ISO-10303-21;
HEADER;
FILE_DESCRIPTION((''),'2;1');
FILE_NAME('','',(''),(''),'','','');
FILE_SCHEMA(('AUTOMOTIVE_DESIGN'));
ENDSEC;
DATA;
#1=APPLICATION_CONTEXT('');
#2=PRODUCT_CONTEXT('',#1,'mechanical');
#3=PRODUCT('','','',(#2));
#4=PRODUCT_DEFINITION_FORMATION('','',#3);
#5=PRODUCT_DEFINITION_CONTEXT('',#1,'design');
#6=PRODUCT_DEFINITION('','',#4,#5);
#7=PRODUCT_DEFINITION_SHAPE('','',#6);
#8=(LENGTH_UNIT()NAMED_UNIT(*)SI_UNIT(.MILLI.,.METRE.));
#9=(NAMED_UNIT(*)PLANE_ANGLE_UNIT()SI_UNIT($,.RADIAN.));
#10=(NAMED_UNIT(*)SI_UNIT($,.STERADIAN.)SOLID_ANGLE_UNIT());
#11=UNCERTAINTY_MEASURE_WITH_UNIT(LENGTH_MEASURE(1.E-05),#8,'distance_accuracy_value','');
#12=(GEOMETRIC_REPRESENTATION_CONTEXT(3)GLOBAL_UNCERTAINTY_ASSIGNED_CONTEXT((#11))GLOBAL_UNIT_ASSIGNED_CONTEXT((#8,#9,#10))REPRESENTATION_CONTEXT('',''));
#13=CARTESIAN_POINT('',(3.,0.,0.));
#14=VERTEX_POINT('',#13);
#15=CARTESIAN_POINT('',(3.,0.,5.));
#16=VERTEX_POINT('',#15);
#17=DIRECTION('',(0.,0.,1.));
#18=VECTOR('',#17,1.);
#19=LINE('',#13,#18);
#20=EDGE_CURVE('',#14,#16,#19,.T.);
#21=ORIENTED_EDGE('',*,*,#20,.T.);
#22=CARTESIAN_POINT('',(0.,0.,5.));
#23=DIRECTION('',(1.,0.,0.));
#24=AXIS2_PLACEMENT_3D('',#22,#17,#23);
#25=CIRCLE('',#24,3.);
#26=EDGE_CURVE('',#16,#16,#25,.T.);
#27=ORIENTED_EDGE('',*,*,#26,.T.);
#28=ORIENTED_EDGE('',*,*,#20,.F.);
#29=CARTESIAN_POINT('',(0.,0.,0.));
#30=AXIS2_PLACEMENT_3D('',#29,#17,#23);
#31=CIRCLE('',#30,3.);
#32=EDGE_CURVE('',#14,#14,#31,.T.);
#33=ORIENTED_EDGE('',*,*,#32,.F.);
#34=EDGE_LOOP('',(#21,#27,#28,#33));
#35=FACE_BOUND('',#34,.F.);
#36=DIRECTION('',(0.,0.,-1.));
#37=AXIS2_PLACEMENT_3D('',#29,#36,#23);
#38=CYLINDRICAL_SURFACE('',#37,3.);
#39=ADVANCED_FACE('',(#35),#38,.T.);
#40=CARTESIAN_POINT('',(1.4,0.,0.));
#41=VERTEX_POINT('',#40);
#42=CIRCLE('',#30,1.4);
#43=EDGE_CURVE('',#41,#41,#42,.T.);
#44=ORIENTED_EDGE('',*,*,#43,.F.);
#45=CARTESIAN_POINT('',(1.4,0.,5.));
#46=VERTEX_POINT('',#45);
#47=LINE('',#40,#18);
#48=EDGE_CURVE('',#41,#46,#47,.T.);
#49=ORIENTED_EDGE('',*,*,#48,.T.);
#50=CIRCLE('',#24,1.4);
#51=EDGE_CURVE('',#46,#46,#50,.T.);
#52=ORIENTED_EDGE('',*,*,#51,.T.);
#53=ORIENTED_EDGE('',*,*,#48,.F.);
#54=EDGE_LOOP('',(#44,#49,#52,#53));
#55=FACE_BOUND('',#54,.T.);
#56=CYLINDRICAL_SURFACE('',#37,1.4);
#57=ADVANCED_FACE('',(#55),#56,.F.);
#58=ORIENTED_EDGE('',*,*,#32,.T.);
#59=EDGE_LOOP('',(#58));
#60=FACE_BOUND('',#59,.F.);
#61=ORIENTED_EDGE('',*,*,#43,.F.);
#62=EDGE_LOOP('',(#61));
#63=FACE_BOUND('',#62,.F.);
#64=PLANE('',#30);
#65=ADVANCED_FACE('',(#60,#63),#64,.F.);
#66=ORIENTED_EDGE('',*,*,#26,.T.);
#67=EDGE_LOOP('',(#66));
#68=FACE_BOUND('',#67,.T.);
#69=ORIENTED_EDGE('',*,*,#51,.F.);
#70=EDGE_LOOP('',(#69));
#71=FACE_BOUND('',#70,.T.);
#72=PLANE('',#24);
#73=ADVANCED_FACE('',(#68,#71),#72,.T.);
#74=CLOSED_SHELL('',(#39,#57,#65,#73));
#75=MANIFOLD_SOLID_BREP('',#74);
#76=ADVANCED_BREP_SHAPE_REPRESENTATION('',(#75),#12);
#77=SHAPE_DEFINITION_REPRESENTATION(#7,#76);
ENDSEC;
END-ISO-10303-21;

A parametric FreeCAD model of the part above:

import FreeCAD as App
import Part
import Sketcher
Q = App.Units.Quantity

doc = App.newDocument("Part")
body = doc.addObject("PartDesign::Body", "Body")

# Sketch on XY plane
sketch1 = body.newObject("Sketcher::SketchObject", "Sketch")
sketch1.AttachmentSupport = (doc.getObject("XY_Plane"), [""])
sketch1.MapMode = "FlatFace"
sketch1.addGeometry(Part.Circle(App.Vector(0, 0, 0), App.Vector(0, 0, 1), 3), False)
sketch1.addGeometry(Part.Circle(App.Vector(0, 0, 0), App.Vector(0, 0, 1), 1.4), False)
sketch1.addConstraint(Sketcher.Constraint("Coincident", 0, 3, -1, 1))
sketch1.addConstraint(Sketcher.Constraint("Coincident", 1, 3, -1, 1))
sketch1.addConstraint(Sketcher.Constraint("Diameter", 0, Q("6 mm")))
sketch1.addConstraint(Sketcher.Constraint("Diameter", 1, Q("2.8 mm")))
pad1 = body.newObject("PartDesign::Pad", "Pad")
pad1.Profile = sketch1
pad1.Length = 5

doc.recompute()
